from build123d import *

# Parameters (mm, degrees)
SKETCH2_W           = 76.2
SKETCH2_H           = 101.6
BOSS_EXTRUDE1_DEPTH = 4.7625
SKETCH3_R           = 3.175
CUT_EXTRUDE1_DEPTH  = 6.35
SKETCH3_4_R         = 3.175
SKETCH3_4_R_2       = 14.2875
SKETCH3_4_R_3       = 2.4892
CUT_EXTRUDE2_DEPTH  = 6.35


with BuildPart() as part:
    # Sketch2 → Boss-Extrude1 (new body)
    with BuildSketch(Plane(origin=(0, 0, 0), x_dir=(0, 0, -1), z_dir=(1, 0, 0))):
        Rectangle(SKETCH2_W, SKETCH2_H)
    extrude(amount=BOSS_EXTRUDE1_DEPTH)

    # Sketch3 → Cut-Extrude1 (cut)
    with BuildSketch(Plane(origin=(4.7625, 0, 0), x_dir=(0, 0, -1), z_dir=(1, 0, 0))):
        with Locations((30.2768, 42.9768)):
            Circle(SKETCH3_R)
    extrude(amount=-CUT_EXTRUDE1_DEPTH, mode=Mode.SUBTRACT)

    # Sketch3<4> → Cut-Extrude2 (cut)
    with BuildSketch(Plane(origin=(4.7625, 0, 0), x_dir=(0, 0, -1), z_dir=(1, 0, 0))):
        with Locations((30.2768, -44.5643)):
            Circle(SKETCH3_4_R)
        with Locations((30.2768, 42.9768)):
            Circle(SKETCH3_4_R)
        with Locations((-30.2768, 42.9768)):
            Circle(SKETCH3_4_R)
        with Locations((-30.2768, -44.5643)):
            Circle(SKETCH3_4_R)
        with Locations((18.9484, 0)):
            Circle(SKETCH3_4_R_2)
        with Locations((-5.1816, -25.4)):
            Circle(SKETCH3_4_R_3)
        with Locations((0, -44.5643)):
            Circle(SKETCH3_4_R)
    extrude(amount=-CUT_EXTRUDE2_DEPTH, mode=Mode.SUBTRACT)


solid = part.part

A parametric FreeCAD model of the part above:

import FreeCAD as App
import Part
import Sketcher
from FreeCAD import Vector
Q = App.Units.Quantity

doc = App.newDocument("Part")
body = doc.addObject("PartDesign::Body", "Body")

# Sketch on YZ plane
sketch1 = doc.addObject("Sketcher::SketchObject", "Sketch")
body.addObject(sketch1)
sketch1.AttachmentSupport = (doc.YZ_Plane, [""])
sketch1.MapMode = "FlatFace"
sketch1.addGeometry([
    Part.LineSegment(Vector(51, 38, 0), Vector(-51, 38, 0)),
    Part.LineSegment(Vector(-51, 38, 0), Vector(-51, -38, 0)),
    Part.LineSegment(Vector(-51, -38, 0), Vector(51, -38, 0)),
    Part.LineSegment(Vector(51, -38, 0), Vector(51, 38, 0)),
], False)
sketch1.addConstraint([
    Sketcher.Constraint("Coincident", 0, 2, 1, 1),
    Sketcher.Constraint("Coincident", 1, 2, 2, 1),
    Sketcher.Constraint("Coincident", 2, 2, 3, 1),
    Sketcher.Constraint("Coincident", 3, 2, 0, 1),
    Sketcher.Constraint("Horizontal", 0),
    Sketcher.Constraint("Vertical", 1),
    Sketcher.Constraint("Horizontal", 2),
    Sketcher.Constraint("Vertical", 3),
    Sketcher.Constraint("Symmetric", 0, 2, 2, 2, -1, 1),
    Sketcher.Constraint("DistanceX", 0, 2, 0, 1, Q("4 in")),
    Sketcher.Constraint("DistanceY", 1, 2, 1, 1, Q("3 in")),
])
pad1 = doc.addObject("PartDesign::Pad", "Pad")
body.addObject(pad1)
pad1.Profile = sketch1
pad1.Length = Q("0.1875 in")

# Sketch on YZ plane
sketch2 = doc.addObject("Sketcher::SketchObject", "Sketch001")
body.addObject(sketch2)
sketch2.AttachmentSupport = (doc.YZ_Plane, [""])
sketch2.MapMode = "FlatFace"
sketch2.AttachmentOffset = App.Placement(Vector(0, 0, 0.1875 * 25.4), App.Rotation())
sketch2.addGeometry(Part.Circle(Vector(43, -30.3, 0), Vector(0, 0, 1), 3.2), False)
sketch2.addConstraint([
    Sketcher.Constraint("Diameter", 0, Q("0.25 in")),
    Sketcher.Constraint("DistanceX", -1, 1, 0, 3, Q("1.692 in")),
    Sketcher.Constraint("DistanceY", 0, 3, -1, 1, Q("1.192 in")),
])
pocket1 = doc.addObject("PartDesign::Pocket", "Pocket")
body.addObject(pocket1)
pocket1.Profile = sketch2
pocket1.Length = Q("0.25 in")

# Sketch on YZ plane
sketch3 = doc.addObject("Sketcher::SketchObject", "Sketch002")
body.addObject(sketch3)
sketch3.AttachmentSupport = (doc.YZ_Plane, [""])
sketch3.MapMode = "FlatFace"
sketch3.AttachmentOffset = App.Placement(Vector(0, 0, 0.1875 * 25.4), App.Rotation())
sketch3.addGeometry([
    Part.Circle(Vector(-44.6, -30.3, 0), Vector(0, 0, 1), 3.2),  # 0
    Part.Circle(Vector(43, -30.3, 0), Vector(0, 0, 1), 3.2),  # 1
    Part.Circle(Vector(43, 30.3, 0), Vector(0, 0, 1), 3.2),  # 2
    Part.Circle(Vector(-44.6, 30.3, 0), Vector(0, 0, 1), 3.2),  # 3
    Part.Circle(Vector(0, -18.9, 0), Vector(0, 0, 1), 14.3),  # 4
    Part.Circle(Vector(-25.4, 5.2, 0), Vector(0, 0, 1), 2.5),  # 5
    Part.Circle(Vector(-44.6, 0, 0), Vector(0, 0, 1), 3.2),  # 6
], False)
sketch3.addConstraint([
    Sketcher.Constraint("Equal", 0, 1),
    Sketcher.Constraint("Equal", 1, 2),
    Sketcher.Constraint("Equal", 2, 3),
    Sketcher.Constraint("Equal", 3, 6),
    Sketcher.Constraint("Symmetric", 1, 3, 2, 3, -1),
    Sketcher.Constraint("Symmetric", 0, 3, 3, 3, -1),
    Sketcher.Constraint("PointOnObject", 4, 3, -2),
    Sketcher.Constraint("PointOnObject", 6, 3, -1),
    Sketcher.Constraint("Horizontal", 0, 3, 1, 3),
    Sketcher.Constraint("Vertical", 3, 3, 6, 3),
    Sketcher.Constraint("Diameter", 0, Q("0.25 in")),
    Sketcher.Constraint("Diameter", 4, Q("1.125 in")),
    Sketcher.Constraint("Diameter", 5, Q("0.196 in")),
    Sketcher.Constraint("DistanceX", 5, 3, -1, 1, Q("1 in")),
    Sketcher.Constraint("DistanceY", 4, 3, 5, 3, Q("0.95 in")),
    Sketcher.Constraint("DistanceY", 0, 3, -1, 1, Q("1.192 in")),
    Sketcher.Constraint("DistanceX", -1, 1, 1, 3, Q("1.692 in")),
    Sketcher.Constraint("DistanceY", 4, 3, -1, 1, Q("0.746 in")),
    Sketcher.Constraint("DistanceX", 0, 3, -1, 1, Q("1.7545 in")),
])
pocket2 = doc.addObject("PartDesign::Pocket", "Pocket001")
body.addObject(pocket2)
pocket2.Profile = sketch3
pocket2.Length = Q("0.25 in")

doc.recompute()
